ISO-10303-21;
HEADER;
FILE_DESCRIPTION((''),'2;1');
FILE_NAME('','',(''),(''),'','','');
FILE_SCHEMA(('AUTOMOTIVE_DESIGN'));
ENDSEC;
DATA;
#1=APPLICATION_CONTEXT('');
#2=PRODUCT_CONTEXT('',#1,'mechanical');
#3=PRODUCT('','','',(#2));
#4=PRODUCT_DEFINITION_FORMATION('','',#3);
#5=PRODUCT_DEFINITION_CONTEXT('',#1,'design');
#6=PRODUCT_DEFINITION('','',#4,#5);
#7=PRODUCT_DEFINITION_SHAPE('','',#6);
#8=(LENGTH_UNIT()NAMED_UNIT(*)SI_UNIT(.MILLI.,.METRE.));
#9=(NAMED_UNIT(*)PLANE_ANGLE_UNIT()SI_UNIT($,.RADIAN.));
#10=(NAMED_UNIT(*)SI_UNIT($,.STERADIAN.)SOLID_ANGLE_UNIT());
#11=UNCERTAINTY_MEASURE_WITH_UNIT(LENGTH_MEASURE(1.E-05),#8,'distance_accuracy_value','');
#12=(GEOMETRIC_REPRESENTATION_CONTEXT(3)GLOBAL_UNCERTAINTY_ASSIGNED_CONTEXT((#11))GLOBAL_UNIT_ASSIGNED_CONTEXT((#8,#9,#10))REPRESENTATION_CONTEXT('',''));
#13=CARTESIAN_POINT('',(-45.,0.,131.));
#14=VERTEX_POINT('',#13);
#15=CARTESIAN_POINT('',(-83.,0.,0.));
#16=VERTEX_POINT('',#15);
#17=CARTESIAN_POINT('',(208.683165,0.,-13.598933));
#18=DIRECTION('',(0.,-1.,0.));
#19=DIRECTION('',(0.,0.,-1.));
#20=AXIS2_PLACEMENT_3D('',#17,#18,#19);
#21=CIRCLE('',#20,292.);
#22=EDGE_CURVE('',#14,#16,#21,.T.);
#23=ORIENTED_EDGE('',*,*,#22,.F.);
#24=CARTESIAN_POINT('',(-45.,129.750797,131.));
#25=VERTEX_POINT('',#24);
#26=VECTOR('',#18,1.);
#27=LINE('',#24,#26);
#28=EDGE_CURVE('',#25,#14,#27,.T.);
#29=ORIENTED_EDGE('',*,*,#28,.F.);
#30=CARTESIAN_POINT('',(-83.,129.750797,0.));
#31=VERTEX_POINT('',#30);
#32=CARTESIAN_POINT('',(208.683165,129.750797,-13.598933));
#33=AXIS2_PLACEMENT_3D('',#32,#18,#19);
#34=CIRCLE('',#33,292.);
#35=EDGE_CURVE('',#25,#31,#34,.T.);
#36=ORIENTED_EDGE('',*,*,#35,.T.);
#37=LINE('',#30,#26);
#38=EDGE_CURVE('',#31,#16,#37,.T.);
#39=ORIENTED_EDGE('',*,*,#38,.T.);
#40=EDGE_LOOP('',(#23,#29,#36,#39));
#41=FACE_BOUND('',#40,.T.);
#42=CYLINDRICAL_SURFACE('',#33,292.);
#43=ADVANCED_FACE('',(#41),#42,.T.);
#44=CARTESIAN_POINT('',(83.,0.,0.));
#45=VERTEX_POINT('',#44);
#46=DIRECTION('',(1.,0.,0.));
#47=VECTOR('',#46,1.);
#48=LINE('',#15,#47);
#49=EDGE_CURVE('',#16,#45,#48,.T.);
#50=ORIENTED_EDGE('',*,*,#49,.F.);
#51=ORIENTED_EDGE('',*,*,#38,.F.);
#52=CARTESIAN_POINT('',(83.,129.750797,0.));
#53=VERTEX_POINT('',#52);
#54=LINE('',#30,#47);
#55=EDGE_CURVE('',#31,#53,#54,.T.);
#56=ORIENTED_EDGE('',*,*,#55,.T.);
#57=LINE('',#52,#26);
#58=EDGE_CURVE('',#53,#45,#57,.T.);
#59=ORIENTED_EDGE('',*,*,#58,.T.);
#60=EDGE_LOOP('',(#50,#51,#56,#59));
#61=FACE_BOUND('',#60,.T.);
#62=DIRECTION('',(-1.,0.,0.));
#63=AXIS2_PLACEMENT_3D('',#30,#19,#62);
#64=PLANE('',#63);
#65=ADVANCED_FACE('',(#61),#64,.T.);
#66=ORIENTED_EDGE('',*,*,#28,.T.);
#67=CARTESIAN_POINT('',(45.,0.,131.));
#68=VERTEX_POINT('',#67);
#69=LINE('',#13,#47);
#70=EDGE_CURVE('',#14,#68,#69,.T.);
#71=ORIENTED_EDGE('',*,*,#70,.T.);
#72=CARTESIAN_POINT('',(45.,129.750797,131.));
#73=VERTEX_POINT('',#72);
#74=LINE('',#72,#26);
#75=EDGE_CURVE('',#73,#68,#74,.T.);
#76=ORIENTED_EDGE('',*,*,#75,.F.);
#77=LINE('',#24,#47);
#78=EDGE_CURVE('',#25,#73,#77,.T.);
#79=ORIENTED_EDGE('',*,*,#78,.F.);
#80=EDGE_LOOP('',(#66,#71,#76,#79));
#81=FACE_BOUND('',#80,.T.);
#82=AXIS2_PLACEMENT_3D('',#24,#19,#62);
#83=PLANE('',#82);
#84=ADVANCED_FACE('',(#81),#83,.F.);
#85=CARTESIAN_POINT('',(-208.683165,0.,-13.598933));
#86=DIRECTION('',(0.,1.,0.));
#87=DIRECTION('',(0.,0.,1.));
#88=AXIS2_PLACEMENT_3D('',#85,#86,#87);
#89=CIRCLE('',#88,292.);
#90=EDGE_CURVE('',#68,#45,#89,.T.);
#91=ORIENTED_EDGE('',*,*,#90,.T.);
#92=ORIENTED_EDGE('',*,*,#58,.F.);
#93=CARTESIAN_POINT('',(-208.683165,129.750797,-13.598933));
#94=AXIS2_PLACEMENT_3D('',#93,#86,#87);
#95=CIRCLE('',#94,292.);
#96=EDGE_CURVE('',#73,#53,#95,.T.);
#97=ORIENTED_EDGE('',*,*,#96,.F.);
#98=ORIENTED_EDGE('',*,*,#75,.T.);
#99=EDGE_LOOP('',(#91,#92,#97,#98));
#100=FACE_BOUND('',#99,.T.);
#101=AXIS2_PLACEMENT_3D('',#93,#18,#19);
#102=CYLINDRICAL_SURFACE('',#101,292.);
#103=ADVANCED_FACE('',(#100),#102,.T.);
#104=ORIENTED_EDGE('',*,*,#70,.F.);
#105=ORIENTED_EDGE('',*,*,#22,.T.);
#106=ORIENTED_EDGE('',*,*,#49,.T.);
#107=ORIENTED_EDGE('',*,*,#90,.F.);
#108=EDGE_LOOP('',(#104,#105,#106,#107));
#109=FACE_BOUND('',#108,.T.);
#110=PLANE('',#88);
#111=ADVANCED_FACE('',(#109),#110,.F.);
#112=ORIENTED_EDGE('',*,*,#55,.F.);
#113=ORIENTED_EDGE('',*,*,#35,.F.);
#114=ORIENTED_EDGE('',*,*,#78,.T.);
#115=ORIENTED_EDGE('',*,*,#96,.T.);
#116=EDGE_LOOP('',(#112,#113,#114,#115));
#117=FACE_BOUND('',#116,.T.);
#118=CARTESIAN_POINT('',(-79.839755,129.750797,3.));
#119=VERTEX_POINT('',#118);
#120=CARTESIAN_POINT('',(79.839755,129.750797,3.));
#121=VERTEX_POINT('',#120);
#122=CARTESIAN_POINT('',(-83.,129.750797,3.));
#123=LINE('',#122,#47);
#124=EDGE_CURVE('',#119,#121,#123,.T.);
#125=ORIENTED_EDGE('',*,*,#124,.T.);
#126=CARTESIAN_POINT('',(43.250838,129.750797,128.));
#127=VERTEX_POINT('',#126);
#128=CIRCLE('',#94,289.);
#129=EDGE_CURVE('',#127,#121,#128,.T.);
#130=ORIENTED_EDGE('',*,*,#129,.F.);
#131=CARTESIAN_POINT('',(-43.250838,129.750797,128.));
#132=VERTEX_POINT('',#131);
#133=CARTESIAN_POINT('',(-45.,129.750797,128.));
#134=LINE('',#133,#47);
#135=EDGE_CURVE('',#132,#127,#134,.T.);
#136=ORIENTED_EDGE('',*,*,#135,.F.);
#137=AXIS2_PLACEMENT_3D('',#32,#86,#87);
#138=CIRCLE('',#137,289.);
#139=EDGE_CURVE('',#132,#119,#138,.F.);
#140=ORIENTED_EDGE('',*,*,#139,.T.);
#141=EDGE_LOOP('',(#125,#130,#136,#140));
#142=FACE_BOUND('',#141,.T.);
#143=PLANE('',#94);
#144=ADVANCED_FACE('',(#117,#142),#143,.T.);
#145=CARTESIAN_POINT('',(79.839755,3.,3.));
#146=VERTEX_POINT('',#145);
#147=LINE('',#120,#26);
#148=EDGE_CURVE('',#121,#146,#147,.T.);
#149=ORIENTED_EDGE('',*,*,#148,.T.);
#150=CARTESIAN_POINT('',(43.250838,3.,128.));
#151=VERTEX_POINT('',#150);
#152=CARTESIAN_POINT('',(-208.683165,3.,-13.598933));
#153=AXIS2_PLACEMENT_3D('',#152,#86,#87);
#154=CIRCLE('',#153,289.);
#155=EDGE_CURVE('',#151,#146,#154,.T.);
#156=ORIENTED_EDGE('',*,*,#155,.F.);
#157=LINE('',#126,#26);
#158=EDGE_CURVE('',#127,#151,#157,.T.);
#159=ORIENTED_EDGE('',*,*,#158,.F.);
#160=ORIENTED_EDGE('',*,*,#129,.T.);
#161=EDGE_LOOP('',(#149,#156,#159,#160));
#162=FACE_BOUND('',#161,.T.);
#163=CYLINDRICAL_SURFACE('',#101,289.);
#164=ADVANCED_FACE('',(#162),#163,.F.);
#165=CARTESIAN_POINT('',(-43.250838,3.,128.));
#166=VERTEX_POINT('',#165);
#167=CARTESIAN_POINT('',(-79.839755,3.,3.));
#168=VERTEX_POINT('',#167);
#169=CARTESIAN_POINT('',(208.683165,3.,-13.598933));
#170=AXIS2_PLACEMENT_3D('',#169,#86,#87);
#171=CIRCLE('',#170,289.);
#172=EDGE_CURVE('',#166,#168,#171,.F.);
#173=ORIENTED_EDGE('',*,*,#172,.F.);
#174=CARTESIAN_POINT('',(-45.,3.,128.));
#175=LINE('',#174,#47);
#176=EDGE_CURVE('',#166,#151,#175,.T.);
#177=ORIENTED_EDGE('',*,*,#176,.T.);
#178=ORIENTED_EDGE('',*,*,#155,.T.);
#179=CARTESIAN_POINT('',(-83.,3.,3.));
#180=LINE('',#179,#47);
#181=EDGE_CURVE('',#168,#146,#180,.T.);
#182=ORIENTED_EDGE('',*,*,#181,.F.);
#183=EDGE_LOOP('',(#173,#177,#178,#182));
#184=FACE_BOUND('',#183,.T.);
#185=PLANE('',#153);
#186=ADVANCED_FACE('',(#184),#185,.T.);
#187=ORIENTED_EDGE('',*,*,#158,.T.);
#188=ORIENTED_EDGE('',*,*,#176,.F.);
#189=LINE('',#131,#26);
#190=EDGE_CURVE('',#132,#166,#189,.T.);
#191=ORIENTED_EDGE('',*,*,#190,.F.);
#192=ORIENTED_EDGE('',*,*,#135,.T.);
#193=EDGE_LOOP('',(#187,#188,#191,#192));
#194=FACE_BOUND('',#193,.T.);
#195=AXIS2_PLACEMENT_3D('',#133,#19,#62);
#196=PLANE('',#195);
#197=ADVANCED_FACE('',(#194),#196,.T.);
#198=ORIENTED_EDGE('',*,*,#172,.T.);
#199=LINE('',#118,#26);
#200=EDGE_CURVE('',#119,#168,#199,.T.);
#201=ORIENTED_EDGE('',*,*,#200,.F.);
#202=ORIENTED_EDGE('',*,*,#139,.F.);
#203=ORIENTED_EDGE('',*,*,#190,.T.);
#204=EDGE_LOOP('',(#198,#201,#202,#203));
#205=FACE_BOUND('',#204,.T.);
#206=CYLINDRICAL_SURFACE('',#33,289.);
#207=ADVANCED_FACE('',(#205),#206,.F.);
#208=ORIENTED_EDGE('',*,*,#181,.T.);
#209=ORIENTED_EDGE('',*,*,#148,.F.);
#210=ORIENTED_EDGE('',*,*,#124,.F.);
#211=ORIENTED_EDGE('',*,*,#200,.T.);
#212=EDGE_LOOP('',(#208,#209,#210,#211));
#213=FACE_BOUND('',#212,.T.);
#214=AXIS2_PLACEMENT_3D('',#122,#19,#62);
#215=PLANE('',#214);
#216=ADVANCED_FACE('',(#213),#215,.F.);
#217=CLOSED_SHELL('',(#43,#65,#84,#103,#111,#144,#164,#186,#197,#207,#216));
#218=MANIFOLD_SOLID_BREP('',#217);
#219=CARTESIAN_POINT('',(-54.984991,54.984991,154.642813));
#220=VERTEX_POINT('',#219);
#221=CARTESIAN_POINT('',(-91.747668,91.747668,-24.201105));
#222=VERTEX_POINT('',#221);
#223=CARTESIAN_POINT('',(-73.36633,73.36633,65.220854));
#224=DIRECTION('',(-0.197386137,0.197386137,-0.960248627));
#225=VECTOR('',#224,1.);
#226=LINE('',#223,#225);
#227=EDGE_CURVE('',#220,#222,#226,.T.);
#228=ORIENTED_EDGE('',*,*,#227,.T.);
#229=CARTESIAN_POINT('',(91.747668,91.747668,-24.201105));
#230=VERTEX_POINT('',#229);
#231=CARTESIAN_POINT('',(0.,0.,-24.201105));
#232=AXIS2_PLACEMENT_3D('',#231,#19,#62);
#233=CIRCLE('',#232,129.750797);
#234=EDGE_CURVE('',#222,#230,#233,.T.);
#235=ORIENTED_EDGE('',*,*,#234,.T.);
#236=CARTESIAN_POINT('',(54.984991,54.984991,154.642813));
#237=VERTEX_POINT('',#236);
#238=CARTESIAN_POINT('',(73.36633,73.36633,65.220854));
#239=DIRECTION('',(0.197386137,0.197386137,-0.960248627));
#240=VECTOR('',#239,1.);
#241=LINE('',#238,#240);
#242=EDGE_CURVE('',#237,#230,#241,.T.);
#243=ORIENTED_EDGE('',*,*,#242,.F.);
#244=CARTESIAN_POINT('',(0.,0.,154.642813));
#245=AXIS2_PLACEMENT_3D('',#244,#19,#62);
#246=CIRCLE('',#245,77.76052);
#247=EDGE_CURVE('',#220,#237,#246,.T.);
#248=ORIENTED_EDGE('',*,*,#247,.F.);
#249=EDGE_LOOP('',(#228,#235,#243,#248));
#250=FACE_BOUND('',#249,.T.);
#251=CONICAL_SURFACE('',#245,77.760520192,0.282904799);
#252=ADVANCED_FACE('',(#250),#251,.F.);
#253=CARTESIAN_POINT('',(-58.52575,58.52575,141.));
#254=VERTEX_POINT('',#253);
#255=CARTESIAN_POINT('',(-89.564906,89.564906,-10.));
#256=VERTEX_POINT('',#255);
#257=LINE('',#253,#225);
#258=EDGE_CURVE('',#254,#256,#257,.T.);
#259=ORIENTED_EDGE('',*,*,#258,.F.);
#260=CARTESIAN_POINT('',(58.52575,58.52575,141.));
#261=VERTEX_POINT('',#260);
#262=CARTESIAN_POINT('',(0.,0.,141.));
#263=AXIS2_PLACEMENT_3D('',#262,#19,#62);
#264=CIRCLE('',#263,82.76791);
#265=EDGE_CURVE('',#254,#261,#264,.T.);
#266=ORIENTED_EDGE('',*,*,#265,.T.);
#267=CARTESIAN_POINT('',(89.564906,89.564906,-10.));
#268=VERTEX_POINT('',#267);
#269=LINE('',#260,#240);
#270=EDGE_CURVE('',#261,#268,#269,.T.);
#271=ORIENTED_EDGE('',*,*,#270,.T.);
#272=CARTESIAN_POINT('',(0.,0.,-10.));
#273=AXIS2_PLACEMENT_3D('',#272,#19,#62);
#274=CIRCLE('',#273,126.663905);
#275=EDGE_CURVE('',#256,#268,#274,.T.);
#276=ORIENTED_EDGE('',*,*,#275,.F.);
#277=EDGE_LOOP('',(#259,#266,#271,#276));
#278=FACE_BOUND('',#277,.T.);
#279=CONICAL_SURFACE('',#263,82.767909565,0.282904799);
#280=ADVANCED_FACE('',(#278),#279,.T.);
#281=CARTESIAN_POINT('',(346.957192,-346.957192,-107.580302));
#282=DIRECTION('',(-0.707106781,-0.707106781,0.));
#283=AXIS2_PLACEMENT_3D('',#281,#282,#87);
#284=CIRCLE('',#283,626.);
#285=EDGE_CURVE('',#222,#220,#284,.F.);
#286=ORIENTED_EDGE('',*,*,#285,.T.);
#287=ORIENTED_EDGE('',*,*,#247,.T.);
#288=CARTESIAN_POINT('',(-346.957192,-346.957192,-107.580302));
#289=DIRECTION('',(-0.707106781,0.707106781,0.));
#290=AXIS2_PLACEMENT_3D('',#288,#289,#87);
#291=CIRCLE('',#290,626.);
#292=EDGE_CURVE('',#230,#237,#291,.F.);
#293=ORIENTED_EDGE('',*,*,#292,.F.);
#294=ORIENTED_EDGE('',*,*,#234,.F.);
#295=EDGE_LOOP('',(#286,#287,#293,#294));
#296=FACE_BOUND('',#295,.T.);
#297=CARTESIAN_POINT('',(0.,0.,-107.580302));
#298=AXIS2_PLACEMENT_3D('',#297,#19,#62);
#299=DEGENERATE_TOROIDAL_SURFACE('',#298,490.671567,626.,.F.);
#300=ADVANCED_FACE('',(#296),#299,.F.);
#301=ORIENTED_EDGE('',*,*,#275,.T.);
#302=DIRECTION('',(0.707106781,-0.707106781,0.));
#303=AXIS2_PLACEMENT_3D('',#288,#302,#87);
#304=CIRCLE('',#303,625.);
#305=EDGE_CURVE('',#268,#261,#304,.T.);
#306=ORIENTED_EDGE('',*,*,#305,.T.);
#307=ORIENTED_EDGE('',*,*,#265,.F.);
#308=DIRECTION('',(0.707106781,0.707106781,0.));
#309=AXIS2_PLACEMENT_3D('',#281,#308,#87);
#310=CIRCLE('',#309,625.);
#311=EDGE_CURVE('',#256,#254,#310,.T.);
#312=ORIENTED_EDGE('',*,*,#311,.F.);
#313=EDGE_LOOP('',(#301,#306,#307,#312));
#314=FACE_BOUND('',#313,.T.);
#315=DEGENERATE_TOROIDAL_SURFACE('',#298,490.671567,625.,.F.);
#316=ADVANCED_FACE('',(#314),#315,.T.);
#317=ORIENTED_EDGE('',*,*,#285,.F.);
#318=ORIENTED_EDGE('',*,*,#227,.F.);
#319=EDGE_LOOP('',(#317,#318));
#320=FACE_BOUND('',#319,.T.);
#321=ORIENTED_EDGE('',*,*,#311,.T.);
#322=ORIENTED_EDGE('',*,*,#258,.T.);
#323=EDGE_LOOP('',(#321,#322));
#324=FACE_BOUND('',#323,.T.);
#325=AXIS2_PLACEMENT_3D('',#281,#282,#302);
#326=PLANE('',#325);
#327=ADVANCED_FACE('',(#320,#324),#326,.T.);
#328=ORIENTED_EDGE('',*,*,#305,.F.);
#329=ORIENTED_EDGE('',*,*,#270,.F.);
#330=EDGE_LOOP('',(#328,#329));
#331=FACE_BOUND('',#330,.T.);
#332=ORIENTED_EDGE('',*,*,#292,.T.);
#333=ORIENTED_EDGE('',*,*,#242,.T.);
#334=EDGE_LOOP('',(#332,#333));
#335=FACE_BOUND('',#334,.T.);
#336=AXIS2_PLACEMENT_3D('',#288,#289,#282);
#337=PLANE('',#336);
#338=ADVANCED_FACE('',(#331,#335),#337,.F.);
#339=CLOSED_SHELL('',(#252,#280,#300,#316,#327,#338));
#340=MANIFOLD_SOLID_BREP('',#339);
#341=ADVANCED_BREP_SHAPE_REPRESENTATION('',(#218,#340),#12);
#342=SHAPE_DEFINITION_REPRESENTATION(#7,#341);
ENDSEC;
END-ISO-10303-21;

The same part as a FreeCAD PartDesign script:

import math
import FreeCAD as App
import Part
import Sketcher

V = App.Vector


def faces_at(feature, points):
    """Names of the faces that lie closest to the given points."""
    faces = feature.Shape.Faces
    near = lambda p: min(range(len(faces)), key=lambda i: faces[i].distToShape(Part.Vertex(*p))[0])
    return sorted({f"Face{near(p) + 1}" for p in points})

doc = App.newDocument("Part")
params = doc.addObject("Spreadsheet::Sheet", "Params")
for row, (alias, value) in enumerate([
    ("sketch1_radius", "626 mm"),
    ("sketch1_radius2", "625 mm"),
    ("revolution_angle", "45 deg"),
    ("sketch2_radius", "626 mm"),
    ("sketch2_radius2", "625 mm"),
    ("revolution2_angle", "45 deg"),
    ("sketch3_radius", "292 mm"),
    ("sketch3_width", "90 mm"),
    ("sketch3_width2", "166 mm"),
    ("pad1_length", "129.750797 mm"),
    ("thickness_wall", "3 mm"),
], start=1):
    params.set(f"A{row}", alias)
    params.set(f"B{row}", "=" + value)
    params.setAlias(f"B{row}", alias)

body = doc.addObject("PartDesign::Body", "Body")

# Sketch on YZ plane
sketch1 = body.newObject("Sketcher::SketchObject", "Sketch")
sketch1.AttachmentSupport = (doc.getObject("YZ_Plane"), [""])
sketch1.MapMode = "FlatFace"
sketch1.addGeometry([
    Part.LineSegment(V(77.76052, 154.642813, 0), V(129.750797, -24.201105, 0)),
    Part.ArcOfCircle(Part.Circle(V(-490.671567, -107.580302, 0), V(0, 0, 1), 626), math.radians(7.654178), math.radians(24.764324)),
    Part.LineSegment(V(126.663905, -10, 0), V(82.76791, 141, 0)),
    Part.ArcOfCircle(Part.Circle(V(-490.671567, -107.580302, 0), V(0, 0, 1), 625), math.radians(8.98225), math.radians(23.436252)),
], False)
sketch1.addConstraint([
    Sketcher.Constraint("Coincident", 0, 1, 1, 2),
    Sketcher.Constraint("Coincident", 1, 1, 0, 2),
    Sketcher.Constraint("Coincident", 2, 1, 3, 1),
    Sketcher.Constraint("Coincident", 3, 2, 2, 2),
    Sketcher.Constraint("Coincident", 3, 3, 1, 3),
    Sketcher.Constraint("Parallel", 0, 2),
    Sketcher.Constraint("Radius", 1, 626.0),
    Sketcher.Constraint("Radius", 3, 625.0),
    Sketcher.Constraint("DistanceY", 2, 1, -1, 1, 10.0),
    Sketcher.Constraint("DistanceY", 1, 3, -1, 1, 107.580302),
    Sketcher.Constraint("Distance", 2, 157.250941),
    Sketcher.Constraint("DistanceX", -1, 1, 0, 1, 77.76052),
    Sketcher.Constraint("Distance", 0, 186.247513),
])
sketch1.setExpression("Constraints[6]", "Params.sketch1_radius")
sketch1.setExpression("Constraints[7]", "Params.sketch1_radius2")
revolution = body.newObject("PartDesign::Revolution", "Revolution")
revolution.Profile = sketch1
revolution.ReferenceAxis = (sketch1, ["V_Axis"])
revolution.setExpression("Angle", "Params.revolution_angle")

# Sketch on YZ plane
sketch2 = body.newObject("Sketcher::SketchObject", "Sketch001")
sketch2.AttachmentSupport = (doc.getObject("YZ_Plane"), [""])
sketch2.MapMode = "FlatFace"
sketch2.addGeometry([
    Part.LineSegment(V(77.76052, 154.642813, 0), V(129.750797, -24.201105, 0)),
    Part.ArcOfCircle(Part.Circle(V(-490.671567, -107.580302, 0), V(0, 0, 1), 626), math.radians(7.654178), math.radians(24.764324)),
    Part.LineSegment(V(126.663905, -10, 0), V(82.76791, 141, 0)),
    Part.ArcOfCircle(Part.Circle(V(-490.671567, -107.580302, 0), V(0, 0, 1), 625), math.radians(8.98225), math.radians(23.436252)),
], False)
sketch2.addConstraint([
    Sketcher.Constraint("Coincident", 0, 1, 1, 2),
    Sketcher.Constraint("Coincident", 1, 1, 0, 2),
    Sketcher.Constraint("Coincident", 2, 1, 3, 1),
    Sketcher.Constraint("Coincident", 3, 2, 2, 2),
    Sketcher.Constraint("Coincident", 3, 3, 1, 3),
    Sketcher.Constraint("Parallel", 0, 2),
    Sketcher.Constraint("Radius", 1, 626.0),
    Sketcher.Constraint("Radius", 3, 625.0),
    Sketcher.Constraint("DistanceY", 2, 1, -1, 1, 10.0),
    Sketcher.Constraint("DistanceY", 1, 3, -1, 1, 107.580302),
    Sketcher.Constraint("Distance", 2, 157.250941),
    Sketcher.Constraint("DistanceX", -1, 1, 0, 1, 77.76052),
    Sketcher.Constraint("Distance", 0, 186.247513),
])
sketch2.setExpression("Constraints[6]", "Params.sketch2_radius")
sketch2.setExpression("Constraints[7]", "Params.sketch2_radius2")
revolution2 = body.newObject("PartDesign::Revolution", "Revolution001")
revolution2.Profile = sketch2
revolution2.ReferenceAxis = (sketch2, ["V_Axis"])
revolution2.setExpression("Angle", "Params.revolution2_angle")
revolution2.Reversed = True
body2 = doc.addObject("PartDesign::Body", "Body001")

# Sketch on XZ plane
sketch3 = body2.newObject("Sketcher::SketchObject", "Sketch002")
sketch3.AttachmentSupport = (doc.getObject("XZ_Plane001"), [""])
sketch3.MapMode = "FlatFace"
sketch3.addGeometry([
    Part.LineSegment(V(-45, 131, 0), V(45, 131, 0)),
    Part.ArcOfCircle(Part.Circle(V(-208.683165, -13.598933, 0), V(0, 0, 1), 292), math.radians(2.669327), math.radians(29.68306)),
    Part.LineSegment(V(83, 0, 0), V(-83, 0, 0)),
    Part.ArcOfCircle(Part.Circle(V(208.683165, -13.598933, 0), V(0, 0, 1), 292), math.radians(150.31694), math.radians(177.330673)),
], False)
sketch3.addConstraint([
    Sketcher.Constraint("Coincident", 0, 2, 1, 2),
    Sketcher.Constraint("Coincident", 1, 1, 2, 1),
    Sketcher.Constraint("Coincident", 2, 2, 3, 2),
    Sketcher.Constraint("Coincident", 3, 1, 0, 1),
    Sketcher.Constraint("Horizontal", 0),
    Sketcher.Constraint("Horizontal", 2),
    Sketcher.Constraint("Equal", 1, 3),
    Sketcher.Constraint("Symmetric", 1, 1, 2, 2, -1, 1),
    Sketcher.Constraint("Horizontal", 1, 3, 3, 3),
    Sketcher.Constraint("Radius", 1, 292.0),
    Sketcher.Constraint("DistanceX", 0, 1, 0, 2, 90.0),
    Sketcher.Constraint("DistanceX", 2, 2, 2, 1, 166.0),
    Sketcher.Constraint("DistanceY", -1, 1, 0, 2, 131.0),
])
sketch3.setExpression("Constraints[9]", "Params.sketch3_radius")
sketch3.setExpression("Constraints[10]", "Params.sketch3_width")
sketch3.setExpression("Constraints[11]", "Params.sketch3_width2")
pad1 = body2.newObject("PartDesign::Pad", "Pad")
pad1.Profile = sketch3
pad1.setExpression("Length", "Params.pad1_length")
pad1.Reversed = True
doc.recompute()

thickness = body2.newObject("PartDesign::Thickness", "Thickness")
thickness.Base = (pad1, faces_at(pad1, [(0, 129.751, 65.5)]))
thickness.setExpression("Value", "Params.thickness_wall")
thickness.Reversed = True
thickness.Join = "Intersection"

doc.recompute()
